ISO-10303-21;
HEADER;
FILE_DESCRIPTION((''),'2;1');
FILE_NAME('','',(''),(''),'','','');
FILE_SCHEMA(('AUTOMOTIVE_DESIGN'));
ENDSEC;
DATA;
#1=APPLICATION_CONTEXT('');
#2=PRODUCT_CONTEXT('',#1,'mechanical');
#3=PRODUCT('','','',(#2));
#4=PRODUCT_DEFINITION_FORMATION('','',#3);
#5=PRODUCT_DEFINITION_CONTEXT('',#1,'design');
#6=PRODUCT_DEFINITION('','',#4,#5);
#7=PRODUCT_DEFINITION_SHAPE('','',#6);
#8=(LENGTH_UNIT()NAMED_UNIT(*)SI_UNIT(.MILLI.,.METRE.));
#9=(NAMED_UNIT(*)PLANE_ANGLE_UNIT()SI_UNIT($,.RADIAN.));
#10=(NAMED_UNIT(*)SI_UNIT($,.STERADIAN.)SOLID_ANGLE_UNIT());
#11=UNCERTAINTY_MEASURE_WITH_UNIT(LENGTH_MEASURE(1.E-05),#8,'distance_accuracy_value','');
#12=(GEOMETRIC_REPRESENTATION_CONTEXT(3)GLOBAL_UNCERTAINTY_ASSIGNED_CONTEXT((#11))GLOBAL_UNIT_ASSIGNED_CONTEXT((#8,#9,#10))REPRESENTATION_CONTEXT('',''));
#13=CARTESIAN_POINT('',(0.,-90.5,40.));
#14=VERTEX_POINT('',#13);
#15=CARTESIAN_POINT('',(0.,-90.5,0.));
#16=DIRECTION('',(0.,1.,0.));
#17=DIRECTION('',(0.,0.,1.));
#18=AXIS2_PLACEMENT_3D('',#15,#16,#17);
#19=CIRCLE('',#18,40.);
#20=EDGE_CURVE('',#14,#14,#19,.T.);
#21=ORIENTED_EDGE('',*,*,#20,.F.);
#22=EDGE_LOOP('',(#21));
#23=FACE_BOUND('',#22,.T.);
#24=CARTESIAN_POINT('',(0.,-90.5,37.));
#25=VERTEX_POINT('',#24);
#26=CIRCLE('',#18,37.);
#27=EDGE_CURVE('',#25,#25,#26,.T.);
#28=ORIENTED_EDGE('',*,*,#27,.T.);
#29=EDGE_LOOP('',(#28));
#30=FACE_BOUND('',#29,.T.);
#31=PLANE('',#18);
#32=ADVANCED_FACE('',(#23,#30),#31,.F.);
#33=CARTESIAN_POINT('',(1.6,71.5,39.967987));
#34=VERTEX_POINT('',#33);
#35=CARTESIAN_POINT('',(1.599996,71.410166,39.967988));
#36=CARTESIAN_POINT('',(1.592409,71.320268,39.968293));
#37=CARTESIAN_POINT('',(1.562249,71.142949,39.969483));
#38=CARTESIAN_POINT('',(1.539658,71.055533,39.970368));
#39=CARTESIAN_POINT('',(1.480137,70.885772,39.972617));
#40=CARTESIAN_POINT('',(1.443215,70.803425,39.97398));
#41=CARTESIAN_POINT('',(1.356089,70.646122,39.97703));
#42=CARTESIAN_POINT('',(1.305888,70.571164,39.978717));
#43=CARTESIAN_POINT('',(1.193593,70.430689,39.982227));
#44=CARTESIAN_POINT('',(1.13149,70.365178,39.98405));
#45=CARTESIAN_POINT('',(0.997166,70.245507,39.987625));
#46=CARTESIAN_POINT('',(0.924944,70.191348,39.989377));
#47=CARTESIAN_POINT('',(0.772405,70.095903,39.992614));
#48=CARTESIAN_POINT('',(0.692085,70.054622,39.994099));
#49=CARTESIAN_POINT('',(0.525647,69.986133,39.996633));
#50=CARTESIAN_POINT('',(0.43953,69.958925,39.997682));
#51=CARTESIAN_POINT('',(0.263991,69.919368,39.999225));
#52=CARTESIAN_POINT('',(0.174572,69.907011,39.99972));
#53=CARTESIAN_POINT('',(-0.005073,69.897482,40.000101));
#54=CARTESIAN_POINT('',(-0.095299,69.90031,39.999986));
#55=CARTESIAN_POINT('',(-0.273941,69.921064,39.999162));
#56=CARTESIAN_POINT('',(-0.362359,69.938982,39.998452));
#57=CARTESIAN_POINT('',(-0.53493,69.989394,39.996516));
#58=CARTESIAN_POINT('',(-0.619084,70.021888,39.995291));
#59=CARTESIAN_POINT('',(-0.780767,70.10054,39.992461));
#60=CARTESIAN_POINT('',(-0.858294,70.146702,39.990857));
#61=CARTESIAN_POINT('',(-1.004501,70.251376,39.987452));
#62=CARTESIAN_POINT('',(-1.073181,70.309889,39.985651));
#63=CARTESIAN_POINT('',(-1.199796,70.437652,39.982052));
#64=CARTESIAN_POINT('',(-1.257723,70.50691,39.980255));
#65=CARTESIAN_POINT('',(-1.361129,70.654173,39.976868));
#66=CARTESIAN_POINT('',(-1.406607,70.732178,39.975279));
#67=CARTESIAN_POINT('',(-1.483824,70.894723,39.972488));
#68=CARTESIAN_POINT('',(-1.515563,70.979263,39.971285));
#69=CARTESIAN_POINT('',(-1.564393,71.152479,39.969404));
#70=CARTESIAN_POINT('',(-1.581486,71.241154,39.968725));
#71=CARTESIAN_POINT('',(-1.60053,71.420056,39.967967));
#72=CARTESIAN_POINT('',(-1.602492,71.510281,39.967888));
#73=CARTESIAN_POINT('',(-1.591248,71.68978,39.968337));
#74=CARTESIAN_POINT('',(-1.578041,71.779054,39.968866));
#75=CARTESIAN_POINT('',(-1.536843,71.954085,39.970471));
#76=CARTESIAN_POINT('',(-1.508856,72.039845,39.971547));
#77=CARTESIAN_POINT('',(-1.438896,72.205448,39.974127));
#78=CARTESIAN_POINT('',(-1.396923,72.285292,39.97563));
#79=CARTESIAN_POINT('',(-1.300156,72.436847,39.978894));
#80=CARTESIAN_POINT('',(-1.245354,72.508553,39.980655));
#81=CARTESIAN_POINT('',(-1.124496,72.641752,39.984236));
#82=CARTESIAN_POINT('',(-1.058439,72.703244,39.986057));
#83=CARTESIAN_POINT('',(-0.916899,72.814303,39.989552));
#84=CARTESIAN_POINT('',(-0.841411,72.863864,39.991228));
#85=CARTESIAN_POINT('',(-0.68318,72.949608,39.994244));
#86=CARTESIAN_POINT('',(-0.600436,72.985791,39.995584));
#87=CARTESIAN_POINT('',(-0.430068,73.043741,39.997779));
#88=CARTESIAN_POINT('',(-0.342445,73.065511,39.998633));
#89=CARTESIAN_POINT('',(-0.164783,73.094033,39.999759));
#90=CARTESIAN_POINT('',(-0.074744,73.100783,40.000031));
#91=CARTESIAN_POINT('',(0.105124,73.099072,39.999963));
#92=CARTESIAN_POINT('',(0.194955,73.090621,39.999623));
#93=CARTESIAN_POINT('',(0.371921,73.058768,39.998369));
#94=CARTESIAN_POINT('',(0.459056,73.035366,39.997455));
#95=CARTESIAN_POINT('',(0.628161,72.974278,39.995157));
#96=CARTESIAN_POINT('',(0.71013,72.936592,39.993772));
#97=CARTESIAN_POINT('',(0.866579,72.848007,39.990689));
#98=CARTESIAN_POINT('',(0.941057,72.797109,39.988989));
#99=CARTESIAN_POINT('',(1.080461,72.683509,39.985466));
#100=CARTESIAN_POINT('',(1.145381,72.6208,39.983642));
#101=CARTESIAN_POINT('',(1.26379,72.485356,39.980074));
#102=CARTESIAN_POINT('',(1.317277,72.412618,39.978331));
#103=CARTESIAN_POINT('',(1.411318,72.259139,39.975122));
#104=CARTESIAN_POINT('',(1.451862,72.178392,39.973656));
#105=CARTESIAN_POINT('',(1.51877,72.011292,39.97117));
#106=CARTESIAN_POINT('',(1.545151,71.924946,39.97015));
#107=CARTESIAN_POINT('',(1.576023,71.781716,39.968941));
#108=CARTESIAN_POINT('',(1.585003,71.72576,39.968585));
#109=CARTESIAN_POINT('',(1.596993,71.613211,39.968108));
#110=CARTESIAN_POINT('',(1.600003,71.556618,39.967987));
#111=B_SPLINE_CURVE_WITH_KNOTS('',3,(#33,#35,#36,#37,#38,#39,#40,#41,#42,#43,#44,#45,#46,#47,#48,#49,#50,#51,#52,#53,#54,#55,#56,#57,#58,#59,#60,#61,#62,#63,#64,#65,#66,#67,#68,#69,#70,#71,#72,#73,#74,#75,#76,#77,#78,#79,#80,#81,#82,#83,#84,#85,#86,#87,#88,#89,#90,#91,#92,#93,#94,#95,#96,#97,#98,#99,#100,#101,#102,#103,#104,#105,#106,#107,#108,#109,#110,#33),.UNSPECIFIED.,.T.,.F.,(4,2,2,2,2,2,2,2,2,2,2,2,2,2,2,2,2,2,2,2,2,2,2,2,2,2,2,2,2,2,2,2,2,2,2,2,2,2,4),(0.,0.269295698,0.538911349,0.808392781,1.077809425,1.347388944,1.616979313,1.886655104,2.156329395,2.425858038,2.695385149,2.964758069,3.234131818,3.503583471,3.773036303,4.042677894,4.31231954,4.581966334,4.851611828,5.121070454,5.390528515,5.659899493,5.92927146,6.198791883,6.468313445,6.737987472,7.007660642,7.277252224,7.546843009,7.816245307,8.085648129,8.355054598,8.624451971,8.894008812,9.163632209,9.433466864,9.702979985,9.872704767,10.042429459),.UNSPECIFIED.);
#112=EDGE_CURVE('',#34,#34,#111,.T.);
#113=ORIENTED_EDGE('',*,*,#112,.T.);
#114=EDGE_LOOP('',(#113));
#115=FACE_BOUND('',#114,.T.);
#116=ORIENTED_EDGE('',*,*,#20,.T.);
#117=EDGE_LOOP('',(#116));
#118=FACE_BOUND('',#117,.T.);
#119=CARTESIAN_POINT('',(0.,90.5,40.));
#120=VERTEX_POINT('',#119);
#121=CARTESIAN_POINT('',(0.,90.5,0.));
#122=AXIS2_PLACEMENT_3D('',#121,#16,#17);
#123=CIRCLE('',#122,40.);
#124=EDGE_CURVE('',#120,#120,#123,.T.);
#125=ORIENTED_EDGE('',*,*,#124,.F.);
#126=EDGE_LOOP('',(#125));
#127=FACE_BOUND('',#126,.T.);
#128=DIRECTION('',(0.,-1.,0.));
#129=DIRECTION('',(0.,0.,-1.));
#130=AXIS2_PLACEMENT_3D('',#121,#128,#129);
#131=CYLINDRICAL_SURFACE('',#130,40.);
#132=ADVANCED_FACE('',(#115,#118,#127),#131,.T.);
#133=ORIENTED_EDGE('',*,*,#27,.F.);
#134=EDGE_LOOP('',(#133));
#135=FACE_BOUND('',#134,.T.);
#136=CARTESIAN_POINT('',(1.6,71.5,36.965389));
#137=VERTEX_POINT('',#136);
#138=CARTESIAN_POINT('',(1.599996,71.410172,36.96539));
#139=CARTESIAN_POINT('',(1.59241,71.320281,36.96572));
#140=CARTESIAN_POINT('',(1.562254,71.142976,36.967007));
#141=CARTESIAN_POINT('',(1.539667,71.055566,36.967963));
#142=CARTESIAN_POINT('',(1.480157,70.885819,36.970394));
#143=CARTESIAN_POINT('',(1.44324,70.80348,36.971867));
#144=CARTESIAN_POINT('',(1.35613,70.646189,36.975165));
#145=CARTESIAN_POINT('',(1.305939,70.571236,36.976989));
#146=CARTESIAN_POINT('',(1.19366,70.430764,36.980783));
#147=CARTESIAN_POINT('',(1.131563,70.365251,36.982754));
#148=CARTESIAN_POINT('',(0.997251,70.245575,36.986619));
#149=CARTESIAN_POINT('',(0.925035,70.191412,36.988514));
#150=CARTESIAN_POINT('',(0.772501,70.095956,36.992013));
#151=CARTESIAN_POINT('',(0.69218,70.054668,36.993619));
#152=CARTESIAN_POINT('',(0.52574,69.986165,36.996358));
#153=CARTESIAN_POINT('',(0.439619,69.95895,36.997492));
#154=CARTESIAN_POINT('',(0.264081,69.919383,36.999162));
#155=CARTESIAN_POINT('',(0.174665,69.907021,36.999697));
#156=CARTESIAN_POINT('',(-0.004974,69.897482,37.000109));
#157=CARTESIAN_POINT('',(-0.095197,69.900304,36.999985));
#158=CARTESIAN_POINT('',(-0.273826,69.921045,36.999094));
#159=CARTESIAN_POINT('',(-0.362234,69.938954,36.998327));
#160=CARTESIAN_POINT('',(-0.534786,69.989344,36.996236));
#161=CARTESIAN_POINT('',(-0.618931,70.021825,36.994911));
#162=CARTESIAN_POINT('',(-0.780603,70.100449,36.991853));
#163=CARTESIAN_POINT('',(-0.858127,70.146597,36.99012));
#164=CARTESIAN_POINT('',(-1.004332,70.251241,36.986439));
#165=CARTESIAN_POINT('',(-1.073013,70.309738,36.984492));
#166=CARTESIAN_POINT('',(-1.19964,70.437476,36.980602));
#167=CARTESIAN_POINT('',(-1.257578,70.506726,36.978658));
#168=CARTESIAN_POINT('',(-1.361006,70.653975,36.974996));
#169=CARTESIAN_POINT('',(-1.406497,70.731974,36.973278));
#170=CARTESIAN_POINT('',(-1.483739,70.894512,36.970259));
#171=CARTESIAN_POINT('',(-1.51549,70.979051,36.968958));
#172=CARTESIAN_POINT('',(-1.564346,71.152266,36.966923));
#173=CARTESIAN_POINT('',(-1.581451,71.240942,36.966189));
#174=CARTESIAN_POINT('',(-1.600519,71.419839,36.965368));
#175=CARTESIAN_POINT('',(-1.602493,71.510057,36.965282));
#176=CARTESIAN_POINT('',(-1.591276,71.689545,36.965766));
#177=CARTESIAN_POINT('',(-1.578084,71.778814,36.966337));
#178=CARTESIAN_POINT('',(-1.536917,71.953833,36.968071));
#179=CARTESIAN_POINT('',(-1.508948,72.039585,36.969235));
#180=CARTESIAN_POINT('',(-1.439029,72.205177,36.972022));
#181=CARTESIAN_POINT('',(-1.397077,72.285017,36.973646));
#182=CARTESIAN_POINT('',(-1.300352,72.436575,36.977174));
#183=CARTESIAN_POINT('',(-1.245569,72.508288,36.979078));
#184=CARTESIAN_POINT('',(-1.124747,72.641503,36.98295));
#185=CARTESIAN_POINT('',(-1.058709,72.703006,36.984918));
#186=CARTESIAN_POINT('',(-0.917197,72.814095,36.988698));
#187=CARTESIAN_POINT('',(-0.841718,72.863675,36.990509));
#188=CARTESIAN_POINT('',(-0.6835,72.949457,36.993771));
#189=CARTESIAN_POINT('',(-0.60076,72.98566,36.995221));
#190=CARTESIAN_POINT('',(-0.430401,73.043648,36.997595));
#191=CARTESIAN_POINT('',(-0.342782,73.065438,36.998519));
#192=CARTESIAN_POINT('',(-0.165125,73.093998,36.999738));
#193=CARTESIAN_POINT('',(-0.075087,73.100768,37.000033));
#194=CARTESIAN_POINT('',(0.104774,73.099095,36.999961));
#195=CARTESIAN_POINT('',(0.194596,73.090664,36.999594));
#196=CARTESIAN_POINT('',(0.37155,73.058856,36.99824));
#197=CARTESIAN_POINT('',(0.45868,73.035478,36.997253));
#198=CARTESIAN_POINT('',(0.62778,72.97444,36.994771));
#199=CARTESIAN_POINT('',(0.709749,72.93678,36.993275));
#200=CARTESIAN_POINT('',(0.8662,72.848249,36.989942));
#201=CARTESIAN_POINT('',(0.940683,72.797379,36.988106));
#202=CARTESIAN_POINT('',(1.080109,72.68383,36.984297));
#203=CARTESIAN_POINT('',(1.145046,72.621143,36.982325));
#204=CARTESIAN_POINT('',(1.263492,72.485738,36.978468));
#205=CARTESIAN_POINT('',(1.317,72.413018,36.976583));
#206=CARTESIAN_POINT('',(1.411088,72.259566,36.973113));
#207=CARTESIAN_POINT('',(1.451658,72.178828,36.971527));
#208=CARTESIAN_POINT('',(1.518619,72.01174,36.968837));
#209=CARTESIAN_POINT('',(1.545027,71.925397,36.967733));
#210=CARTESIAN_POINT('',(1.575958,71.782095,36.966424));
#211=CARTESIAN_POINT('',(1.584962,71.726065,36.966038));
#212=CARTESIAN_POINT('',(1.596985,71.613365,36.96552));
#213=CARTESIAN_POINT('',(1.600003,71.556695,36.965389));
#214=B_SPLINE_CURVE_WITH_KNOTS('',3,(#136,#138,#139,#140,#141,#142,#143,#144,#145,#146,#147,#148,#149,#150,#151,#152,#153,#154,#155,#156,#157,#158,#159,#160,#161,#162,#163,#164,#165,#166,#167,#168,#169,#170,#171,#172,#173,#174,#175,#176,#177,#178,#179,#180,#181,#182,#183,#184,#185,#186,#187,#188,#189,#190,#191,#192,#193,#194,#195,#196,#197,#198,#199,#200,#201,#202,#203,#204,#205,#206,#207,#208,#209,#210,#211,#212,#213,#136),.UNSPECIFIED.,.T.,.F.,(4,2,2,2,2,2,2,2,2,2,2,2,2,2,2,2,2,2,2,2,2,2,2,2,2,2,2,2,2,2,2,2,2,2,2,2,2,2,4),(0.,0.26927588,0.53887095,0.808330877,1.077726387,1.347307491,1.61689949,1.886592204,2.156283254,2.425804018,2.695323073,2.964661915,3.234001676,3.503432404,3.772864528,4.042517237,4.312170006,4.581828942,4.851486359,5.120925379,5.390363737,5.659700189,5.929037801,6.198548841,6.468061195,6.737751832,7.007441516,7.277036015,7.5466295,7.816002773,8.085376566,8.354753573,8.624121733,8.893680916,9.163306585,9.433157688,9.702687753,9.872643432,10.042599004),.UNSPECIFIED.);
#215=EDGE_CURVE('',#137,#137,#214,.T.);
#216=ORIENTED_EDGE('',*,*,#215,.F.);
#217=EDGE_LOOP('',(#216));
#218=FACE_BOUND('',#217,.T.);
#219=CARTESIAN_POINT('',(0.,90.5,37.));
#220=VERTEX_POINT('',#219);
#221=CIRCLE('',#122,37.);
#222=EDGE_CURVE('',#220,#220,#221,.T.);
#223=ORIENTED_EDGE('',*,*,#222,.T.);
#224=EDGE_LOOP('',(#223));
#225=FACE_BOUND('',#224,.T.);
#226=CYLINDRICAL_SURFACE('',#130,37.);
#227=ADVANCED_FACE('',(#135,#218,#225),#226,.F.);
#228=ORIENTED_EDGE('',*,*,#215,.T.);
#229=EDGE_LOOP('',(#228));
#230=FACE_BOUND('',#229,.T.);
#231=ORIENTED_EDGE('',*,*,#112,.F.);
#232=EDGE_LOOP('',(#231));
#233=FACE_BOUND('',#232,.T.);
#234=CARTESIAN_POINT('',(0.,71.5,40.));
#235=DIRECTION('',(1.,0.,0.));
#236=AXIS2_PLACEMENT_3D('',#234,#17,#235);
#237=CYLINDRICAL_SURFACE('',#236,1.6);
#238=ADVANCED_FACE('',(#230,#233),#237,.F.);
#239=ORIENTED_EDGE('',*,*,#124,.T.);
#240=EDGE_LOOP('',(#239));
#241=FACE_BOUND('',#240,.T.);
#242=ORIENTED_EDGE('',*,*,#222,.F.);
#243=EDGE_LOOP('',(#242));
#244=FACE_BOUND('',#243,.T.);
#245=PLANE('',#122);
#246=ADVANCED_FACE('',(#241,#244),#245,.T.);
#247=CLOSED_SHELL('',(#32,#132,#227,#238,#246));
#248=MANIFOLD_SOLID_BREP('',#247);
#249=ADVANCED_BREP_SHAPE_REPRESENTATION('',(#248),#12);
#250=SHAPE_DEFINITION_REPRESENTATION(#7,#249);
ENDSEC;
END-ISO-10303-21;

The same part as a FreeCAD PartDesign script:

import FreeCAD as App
import Part
import Sketcher

doc = App.newDocument("Part")
params = doc.addObject("Spreadsheet::Sheet", "Params")
for row, (alias, value) in enumerate([
    ("sketch1_diameter", "80 mm"),
    ("sketch1_diameter2", "74 mm"),
    ("pad1_length", "181 mm"),
    ("sketch2_diameter", "3.2 mm"),
], start=1):
    params.set(f"A{row}", alias)
    params.set(f"B{row}", "=" + value)
    params.setAlias(f"B{row}", alias)

body = doc.addObject("PartDesign::Body", "Body")

# Sketch on XZ plane
sketch1 = body.newObject("Sketcher::SketchObject", "Sketch")
sketch1.AttachmentSupport = (doc.getObject("XZ_Plane"), [""])
sketch1.MapMode = "FlatFace"
sketch1.addGeometry([
    Part.Circle(App.Vector(0, 0, 0), App.Vector(0, 0, 1), 40),
    Part.Circle(App.Vector(0, 0, 0), App.Vector(0, 0, 1), 37),
], False)
sketch1.addConstraint([
    Sketcher.Constraint("Coincident", 0, 3, -1, 1),
    Sketcher.Constraint("Coincident", 1, 3, -1, 1),
    Sketcher.Constraint("Diameter", 0, 80.0),
    Sketcher.Constraint("Diameter", 1, 74.0),
])
sketch1.setExpression("Constraints[2]", "Params.sketch1_diameter")
sketch1.setExpression("Constraints[3]", "Params.sketch1_diameter2")
pad1 = body.newObject("PartDesign::Pad", "Pad")
pad1.Profile = sketch1
pad1.setExpression("Length", "Params.pad1_length")
pad1.Midplane = True

# Sketch on XY plane
sketch2 = body.newObject("Sketcher::SketchObject", "Sketch001")
sketch2.AttachmentSupport = (doc.getObject("XY_Plane"), [""])
sketch2.MapMode = "FlatFace"
sketch2.AttachmentOffset = App.Placement(App.Vector(0, 0, 40), App.Rotation())
sketch2.addGeometry(Part.Circle(App.Vector(0, 71.5, 0), App.Vector(0, 0, 1), 1.6), False)
sketch2.addConstraint([
    Sketcher.Constraint("PointOnObject", 0, 3, -2),
    Sketcher.Constraint("Diameter", 0, 3.2),
    Sketcher.Constraint("DistanceY", -1, 1, 0, 3, 71.5),
])
sketch2.setExpression("Constraints[1]", "Params.sketch2_diameter")
pocket1 = body.newObject("PartDesign::Pocket", "Pocket")
pocket1.Profile = sketch2
pocket1.Type = "UpToFirst"

doc.recompute()
